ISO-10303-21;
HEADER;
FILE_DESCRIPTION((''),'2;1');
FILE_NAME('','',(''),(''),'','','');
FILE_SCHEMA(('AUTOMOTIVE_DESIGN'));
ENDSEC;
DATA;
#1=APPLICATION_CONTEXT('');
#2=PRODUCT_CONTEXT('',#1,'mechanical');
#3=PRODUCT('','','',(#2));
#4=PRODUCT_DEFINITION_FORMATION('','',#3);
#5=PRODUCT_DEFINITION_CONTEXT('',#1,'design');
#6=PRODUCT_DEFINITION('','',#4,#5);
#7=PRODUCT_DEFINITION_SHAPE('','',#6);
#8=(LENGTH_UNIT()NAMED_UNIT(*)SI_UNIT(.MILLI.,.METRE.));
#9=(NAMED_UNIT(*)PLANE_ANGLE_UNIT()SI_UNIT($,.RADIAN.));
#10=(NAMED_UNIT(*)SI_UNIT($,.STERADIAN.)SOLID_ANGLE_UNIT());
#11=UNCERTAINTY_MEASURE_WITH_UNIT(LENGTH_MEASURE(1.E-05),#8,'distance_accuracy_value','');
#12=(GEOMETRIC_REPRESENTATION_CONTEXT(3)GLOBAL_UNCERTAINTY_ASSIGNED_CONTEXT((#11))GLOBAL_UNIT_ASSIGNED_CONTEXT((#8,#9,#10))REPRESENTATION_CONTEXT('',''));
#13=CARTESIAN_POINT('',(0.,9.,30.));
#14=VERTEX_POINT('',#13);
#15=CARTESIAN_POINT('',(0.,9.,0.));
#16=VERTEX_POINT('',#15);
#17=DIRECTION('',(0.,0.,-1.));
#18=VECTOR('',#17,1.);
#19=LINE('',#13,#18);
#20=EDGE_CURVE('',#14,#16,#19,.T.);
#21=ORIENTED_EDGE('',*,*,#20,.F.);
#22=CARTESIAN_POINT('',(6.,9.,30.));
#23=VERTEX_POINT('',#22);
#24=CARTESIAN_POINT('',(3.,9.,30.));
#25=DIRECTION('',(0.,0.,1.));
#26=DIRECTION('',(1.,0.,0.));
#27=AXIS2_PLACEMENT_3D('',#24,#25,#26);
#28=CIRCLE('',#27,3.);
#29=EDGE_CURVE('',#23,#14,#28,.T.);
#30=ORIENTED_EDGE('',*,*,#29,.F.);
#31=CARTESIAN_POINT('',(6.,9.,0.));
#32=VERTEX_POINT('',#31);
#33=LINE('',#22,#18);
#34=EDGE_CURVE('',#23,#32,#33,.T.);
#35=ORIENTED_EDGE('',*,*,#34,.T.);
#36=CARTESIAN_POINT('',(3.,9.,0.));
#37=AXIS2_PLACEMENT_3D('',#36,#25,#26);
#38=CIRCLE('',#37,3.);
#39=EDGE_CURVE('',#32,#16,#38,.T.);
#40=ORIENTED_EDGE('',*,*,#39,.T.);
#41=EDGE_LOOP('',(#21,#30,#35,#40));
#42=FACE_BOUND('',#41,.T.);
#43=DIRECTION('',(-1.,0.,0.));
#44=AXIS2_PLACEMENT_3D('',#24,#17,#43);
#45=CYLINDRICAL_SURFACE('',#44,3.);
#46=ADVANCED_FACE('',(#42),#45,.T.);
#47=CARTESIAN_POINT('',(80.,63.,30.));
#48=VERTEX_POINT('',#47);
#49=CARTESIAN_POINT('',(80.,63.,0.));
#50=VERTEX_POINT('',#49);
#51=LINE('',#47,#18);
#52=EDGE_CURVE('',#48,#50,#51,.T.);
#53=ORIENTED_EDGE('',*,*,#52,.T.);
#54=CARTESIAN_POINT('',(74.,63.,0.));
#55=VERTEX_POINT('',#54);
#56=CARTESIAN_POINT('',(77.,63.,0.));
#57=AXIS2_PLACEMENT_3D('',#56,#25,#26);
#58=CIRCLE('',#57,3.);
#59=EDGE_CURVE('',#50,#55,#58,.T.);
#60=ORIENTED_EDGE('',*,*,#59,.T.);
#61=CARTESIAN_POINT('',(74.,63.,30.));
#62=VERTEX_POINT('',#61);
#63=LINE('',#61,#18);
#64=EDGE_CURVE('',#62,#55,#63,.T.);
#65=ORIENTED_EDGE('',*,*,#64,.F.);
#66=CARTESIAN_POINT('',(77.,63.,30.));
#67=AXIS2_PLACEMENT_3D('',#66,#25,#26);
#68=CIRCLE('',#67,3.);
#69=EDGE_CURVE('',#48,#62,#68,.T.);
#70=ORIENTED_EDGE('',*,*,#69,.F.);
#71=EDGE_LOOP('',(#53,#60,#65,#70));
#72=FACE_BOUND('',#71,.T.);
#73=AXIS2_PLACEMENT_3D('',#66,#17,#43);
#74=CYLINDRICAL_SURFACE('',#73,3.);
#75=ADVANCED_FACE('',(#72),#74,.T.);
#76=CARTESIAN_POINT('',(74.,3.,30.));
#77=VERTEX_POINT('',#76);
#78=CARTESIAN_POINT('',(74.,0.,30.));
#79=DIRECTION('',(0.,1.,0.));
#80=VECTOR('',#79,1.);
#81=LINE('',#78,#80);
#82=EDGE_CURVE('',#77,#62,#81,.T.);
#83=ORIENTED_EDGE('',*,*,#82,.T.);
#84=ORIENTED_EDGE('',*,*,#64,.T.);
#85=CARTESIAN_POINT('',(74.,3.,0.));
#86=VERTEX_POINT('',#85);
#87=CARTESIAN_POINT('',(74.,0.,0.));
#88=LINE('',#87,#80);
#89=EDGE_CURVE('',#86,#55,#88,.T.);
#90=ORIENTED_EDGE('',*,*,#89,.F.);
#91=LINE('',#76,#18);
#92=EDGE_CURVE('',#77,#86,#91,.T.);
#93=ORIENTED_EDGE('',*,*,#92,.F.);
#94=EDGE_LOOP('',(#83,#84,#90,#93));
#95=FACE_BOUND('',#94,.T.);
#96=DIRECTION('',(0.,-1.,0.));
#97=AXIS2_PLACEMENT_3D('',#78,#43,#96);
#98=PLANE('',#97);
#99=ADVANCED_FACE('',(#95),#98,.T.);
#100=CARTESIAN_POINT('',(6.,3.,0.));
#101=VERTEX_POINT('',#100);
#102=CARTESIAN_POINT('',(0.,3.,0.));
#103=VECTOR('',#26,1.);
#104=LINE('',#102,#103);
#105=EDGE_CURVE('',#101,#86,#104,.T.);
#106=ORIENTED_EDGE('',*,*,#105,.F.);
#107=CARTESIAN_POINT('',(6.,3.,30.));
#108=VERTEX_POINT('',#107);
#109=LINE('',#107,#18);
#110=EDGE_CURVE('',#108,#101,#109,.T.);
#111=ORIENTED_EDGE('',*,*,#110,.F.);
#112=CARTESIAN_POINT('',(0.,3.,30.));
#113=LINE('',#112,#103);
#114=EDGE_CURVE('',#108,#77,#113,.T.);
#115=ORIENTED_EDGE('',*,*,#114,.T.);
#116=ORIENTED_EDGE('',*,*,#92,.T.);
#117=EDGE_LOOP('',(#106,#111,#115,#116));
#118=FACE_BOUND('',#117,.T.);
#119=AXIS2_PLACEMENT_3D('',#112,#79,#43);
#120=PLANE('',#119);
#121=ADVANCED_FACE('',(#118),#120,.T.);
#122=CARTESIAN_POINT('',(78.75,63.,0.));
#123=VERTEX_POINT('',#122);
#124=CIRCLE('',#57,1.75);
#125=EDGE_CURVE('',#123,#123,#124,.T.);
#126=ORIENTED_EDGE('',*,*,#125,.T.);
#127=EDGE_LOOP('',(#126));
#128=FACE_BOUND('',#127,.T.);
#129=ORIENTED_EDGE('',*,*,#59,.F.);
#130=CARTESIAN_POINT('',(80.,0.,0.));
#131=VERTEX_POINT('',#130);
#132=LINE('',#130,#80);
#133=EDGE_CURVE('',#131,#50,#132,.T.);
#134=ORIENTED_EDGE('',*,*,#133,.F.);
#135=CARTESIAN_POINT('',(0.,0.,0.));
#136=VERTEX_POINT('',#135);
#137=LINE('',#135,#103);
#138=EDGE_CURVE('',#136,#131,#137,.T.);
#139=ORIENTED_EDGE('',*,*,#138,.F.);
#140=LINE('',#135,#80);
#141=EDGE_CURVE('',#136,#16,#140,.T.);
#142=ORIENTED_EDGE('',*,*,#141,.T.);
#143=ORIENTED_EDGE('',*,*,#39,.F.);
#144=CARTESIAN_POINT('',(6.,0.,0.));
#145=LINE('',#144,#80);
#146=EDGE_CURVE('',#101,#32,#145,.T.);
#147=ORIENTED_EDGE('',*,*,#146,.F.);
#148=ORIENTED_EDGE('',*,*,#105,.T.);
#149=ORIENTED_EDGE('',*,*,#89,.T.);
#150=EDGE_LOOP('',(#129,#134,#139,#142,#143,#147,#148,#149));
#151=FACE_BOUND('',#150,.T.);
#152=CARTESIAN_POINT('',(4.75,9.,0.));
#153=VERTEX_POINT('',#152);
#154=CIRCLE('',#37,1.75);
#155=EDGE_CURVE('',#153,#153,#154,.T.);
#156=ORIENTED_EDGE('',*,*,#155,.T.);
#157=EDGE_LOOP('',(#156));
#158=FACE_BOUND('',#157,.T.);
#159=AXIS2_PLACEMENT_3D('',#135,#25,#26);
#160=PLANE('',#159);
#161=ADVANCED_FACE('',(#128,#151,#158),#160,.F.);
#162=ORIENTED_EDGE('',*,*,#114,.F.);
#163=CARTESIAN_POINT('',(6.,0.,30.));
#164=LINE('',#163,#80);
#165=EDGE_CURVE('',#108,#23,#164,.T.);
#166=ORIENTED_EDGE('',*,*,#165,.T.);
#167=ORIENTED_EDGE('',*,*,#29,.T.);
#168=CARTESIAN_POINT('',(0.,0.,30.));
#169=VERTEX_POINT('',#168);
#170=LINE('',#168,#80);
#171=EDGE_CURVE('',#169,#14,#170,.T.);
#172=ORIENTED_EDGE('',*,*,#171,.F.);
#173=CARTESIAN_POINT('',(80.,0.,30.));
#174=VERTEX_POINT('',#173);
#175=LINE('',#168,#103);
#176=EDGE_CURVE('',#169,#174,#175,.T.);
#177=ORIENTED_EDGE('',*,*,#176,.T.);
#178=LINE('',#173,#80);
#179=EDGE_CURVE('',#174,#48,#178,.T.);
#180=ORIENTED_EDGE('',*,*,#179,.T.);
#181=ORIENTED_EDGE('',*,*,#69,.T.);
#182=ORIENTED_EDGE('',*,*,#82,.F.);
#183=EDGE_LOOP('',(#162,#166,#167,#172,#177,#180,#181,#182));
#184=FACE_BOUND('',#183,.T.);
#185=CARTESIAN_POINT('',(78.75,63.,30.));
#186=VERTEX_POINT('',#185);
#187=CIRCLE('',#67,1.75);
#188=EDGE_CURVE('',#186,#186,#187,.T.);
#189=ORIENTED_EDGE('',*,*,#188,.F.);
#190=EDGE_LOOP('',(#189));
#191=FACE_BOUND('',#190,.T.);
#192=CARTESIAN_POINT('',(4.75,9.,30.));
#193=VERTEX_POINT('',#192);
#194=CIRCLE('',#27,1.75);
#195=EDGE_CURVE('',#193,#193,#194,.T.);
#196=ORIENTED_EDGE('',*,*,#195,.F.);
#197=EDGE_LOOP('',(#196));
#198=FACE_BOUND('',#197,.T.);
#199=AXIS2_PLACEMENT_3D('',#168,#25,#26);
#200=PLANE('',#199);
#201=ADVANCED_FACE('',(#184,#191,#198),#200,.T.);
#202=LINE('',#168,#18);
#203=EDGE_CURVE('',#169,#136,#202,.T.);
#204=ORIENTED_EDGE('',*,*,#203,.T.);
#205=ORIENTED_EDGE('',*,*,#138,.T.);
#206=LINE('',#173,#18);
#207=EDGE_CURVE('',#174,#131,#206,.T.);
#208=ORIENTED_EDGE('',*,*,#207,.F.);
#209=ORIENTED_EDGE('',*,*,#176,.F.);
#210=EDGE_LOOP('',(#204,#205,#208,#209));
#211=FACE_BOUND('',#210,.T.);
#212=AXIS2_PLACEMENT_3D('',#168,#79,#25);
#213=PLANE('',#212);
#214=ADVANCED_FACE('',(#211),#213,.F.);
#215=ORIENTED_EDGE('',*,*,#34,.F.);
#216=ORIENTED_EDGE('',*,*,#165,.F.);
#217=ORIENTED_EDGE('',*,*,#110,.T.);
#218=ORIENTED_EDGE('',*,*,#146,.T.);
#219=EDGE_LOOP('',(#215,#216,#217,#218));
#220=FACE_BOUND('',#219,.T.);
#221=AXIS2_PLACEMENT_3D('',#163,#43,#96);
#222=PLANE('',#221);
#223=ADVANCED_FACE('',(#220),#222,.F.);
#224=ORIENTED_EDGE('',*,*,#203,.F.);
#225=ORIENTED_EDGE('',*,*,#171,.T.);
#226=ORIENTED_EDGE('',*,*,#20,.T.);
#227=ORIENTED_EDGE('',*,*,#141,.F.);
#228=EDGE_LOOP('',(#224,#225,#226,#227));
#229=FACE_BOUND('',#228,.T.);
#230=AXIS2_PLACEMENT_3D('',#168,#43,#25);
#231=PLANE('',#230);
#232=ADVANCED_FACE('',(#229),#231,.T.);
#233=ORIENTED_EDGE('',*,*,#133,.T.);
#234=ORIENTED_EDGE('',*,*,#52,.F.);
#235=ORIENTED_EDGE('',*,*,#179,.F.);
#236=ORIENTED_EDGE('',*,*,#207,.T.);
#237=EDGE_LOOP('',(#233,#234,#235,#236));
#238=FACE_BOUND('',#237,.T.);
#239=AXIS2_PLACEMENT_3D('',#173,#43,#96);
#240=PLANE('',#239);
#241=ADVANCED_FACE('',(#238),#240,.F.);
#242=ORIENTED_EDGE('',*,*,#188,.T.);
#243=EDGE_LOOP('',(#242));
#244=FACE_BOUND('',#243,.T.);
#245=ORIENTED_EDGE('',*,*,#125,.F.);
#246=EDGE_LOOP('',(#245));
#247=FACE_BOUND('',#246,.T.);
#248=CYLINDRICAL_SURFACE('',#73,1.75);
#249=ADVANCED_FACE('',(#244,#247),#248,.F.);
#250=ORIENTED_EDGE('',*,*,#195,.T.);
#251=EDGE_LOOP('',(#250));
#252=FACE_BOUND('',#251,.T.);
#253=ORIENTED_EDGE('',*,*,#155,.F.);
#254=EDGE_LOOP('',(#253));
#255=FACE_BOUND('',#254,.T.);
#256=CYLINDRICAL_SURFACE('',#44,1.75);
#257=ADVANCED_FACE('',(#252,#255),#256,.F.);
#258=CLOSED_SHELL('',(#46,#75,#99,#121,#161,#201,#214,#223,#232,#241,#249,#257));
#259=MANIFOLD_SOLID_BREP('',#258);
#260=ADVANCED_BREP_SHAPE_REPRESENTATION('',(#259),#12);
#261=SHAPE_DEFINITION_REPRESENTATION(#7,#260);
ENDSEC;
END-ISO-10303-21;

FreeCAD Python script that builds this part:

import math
import FreeCAD as App
import Part
import Sketcher

V = App.Vector
Q = App.Units.Quantity

doc = App.newDocument("Part")
params = doc.addObject("Spreadsheet::Sheet", "Params")
for row, (alias, value) in enumerate([
    ("sketch1_radius", "3 mm"),
    ("sketch1_diameter", "3.5 mm"),
    ("sketch1_width", "68 mm"),
    ("sketch1_height", "60 mm"),
    ("sketch1_height2", "6 mm"),
    ("pad1_length", "30 mm"),
], start=1):
    params.set(f"A{row}", alias)
    params.set(f"B{row}", "=" + value)
    params.setAlias(f"B{row}", alias)

body = doc.addObject("PartDesign::Body", "Body")

sketch1 = body.newObject("Sketcher::SketchObject", "Sketch")
sketch1.AttachmentSupport = (doc.getObject("XY_Plane"), [""])
sketch1.MapMode = "FlatFace"
sketch1.addGeometry([
    Part.ArcOfCircle(Part.Circle(V(77, 63, 0), V(0, 0, 1), 3), math.radians(0), math.radians(63.024896)),
    Part.ArcOfCircle(Part.Circle(V(77, 63, 0), V(0, 0, 1), 3), math.radians(63.024896), math.radians(116.975104)),
    Part.ArcOfCircle(Part.Circle(V(77, 63, 0), V(0, 0, 1), 3), math.radians(116.975104), math.radians(180)),
    Part.LineSegment(V(74, 63, 0), V(74, 3, 0)),
    Part.LineSegment(V(74, 3, 0), V(6, 3, 0)),
    Part.LineSegment(V(6, 3, 0), V(6, 9, 0)),
    Part.ArcOfCircle(Part.Circle(V(3, 9, 0), V(0, 0, 1), 3), math.radians(0), math.radians(180)),
    Part.LineSegment(V(0, 9, 0), V(0, 0, 0)),
    Part.LineSegment(V(0, 0, 0), V(80, 0, 0)),
    Part.LineSegment(V(80, 0, 0), V(80, 63, 0)),
    Part.Circle(V(77, 63, 0), V(0, 0, 1), 1.75),
    Part.Circle(V(3, 9, 0), V(0, 0, 1), 1.75),
], False)
sketch1.addConstraint([
    Sketcher.Constraint("Tangent", 0, 2, 1, 1),
    Sketcher.Constraint("Tangent", 1, 2, 2, 1),
    Sketcher.Constraint("Tangent", 2, 2, 3, 1),
    Sketcher.Constraint("Coincident", 3, 2, 4, 1),
    Sketcher.Constraint("Coincident", 4, 2, 5, 1),
    Sketcher.Constraint("Tangent", 5, 2, 6, 1),
    Sketcher.Constraint("Tangent", 6, 2, 7, 1),
    Sketcher.Constraint("Coincident", 7, 2, 8, 1),
    Sketcher.Constraint("Coincident", 8, 2, 9, 1),
    Sketcher.Constraint("Tangent", 9, 2, 0, 1),
    Sketcher.Constraint("Vertical", 3),
    Sketcher.Constraint("Horizontal", 4),
    Sketcher.Constraint("Vertical", 5),
    Sketcher.Constraint("Vertical", 7),
    Sketcher.Constraint("Horizontal", 8),
    Sketcher.Constraint("Vertical", 9),
    Sketcher.Constraint("Coincident", 7, 2, -1, 1),
    Sketcher.Constraint("Coincident", 2, 3, 0, 3),
    Sketcher.Constraint("Coincident", 10, 3, 0, 3),
    Sketcher.Constraint("Coincident", 11, 3, 6, 3),
    Sketcher.Constraint("Equal", 2, 6),
    Sketcher.Constraint("Equal", 10, 11),
    Sketcher.Constraint("Horizontal", 0, 2, 1, 2),
    Sketcher.Constraint("Radius", 0, Q("3 mm")),
    Sketcher.Constraint("Diameter", 10, Q("3.5 mm")),
    Sketcher.Constraint("DistanceX", 4, 2, 4, 1, Q("68 mm")),
    Sketcher.Constraint("DistanceY", 3, 2, 3, 1, Q("60 mm")),
    Sketcher.Constraint("DistanceY", 5, 1, 5, 2, Q("6 mm")),
    Sketcher.Constraint("DistanceY", 7, 2, 7, 1, Q("9 mm")),
    Sketcher.Constraint("DistanceX", -1, 1, 0, 2, Q("78.36081 mm")),
])
sketch1.setExpression("Constraints[23]", "Params.sketch1_radius")
sketch1.setExpression("Constraints[24]", "Params.sketch1_diameter")
sketch1.setExpression("Constraints[25]", "Params.sketch1_width")
sketch1.setExpression("Constraints[26]", "Params.sketch1_height")
sketch1.setExpression("Constraints[27]", "Params.sketch1_height2")
pad1 = body.newObject("PartDesign::Pad", "Pad")
pad1.Profile = sketch1
pad1.setExpression("Length", "Params.pad1_length")

doc.recompute()
